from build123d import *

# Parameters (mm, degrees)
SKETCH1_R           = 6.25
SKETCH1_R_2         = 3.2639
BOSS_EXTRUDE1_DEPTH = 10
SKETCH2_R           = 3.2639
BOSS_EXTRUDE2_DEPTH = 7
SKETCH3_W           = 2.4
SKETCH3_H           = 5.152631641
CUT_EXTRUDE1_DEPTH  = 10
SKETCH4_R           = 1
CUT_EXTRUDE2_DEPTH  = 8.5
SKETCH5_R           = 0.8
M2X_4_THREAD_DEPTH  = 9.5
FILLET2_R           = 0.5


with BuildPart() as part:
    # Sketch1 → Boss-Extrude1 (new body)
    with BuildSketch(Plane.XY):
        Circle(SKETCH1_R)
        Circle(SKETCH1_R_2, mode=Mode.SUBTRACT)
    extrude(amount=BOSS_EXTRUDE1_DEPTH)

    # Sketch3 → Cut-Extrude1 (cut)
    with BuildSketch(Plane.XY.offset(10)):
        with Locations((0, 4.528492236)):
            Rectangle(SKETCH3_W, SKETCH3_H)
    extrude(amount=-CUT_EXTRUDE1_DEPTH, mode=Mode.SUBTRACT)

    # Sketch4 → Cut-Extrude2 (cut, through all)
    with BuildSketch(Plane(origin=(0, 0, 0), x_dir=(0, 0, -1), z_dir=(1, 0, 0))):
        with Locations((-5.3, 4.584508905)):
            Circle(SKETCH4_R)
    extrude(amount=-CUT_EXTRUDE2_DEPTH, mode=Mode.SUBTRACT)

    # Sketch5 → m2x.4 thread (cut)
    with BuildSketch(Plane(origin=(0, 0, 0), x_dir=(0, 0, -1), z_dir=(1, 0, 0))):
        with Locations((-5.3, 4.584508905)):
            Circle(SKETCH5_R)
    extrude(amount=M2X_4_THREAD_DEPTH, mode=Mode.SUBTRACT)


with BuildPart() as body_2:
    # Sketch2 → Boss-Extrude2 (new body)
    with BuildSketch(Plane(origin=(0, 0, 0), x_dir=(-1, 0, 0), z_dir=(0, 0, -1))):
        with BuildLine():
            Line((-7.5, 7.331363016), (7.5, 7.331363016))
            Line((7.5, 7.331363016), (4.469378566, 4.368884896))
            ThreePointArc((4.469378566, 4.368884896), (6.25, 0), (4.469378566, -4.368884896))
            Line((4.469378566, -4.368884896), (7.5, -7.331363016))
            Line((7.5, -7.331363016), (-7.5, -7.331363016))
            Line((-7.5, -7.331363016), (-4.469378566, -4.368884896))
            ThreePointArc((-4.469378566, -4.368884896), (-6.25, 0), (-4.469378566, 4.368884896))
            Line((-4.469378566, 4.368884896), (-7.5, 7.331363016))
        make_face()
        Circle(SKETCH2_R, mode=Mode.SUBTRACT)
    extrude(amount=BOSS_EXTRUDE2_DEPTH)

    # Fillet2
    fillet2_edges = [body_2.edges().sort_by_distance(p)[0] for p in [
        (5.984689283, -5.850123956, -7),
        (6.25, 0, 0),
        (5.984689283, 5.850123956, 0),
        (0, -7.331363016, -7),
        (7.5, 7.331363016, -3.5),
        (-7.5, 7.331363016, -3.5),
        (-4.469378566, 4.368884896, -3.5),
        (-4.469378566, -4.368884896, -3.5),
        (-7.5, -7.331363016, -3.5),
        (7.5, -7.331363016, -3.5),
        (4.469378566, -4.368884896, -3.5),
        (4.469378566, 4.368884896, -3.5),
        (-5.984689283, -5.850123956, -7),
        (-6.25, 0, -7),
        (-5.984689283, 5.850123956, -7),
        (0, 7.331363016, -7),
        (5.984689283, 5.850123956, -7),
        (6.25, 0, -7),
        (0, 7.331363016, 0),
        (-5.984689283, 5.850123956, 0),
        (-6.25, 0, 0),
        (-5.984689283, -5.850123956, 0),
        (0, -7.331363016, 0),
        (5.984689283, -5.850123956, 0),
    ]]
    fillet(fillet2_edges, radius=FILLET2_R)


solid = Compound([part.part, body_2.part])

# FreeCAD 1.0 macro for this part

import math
import FreeCAD as App
import Part
import Sketcher

V = App.Vector


def edges_at(feature, points):
    """Names of the edges that pass closest to the given points."""
    edges = feature.Shape.Edges
    near = lambda p: min(range(len(edges)), key=lambda i: edges[i].distToShape(Part.Vertex(*p))[0])
    return sorted({f"Edge{near(p) + 1}" for p in points})


def add_polygon(sketch, points):
    """Adds a closed chain of lines whose ends are joined by coincident constraints."""
    first, n = sketch.GeometryCount, len(points)
    for a, b in zip(points, points[1:] + points[:1]):
        sketch.addGeometry(Part.LineSegment(App.Vector(*a, 0), App.Vector(*b, 0)), False)
    for i in range(n):
        sketch.addConstraint(Sketcher.Constraint("Coincident", first + i, 2, first + (i + 1) % n, 1))

doc = App.newDocument("Part")
params = doc.addObject("Spreadsheet::Sheet", "Params")
for row, (alias, value) in enumerate([
    ("sketch1_diameter", "12.5 mm"),
    ("pad1_length", "10 mm"),
    ("sketch2_width", "2.4 mm"),
    ("pocket1_length", "10 mm"),
    ("sketch3_diameter", "2 mm"),
    ("sketch4_diameter", "1.6 mm"),
    ("pocket3_length", "9.5 mm"),
    ("sketch5_width", "15 mm"),
    ("sketch5_radius", "6.25 mm"),
    ("pad2_length", "7 mm"),
    ("fillet_radius", "0.5 mm"),
], start=1):
    params.set(f"A{row}", alias)
    params.set(f"B{row}", "=" + value)
    params.setAlias(f"B{row}", alias)

body = doc.addObject("PartDesign::Body", "Body")

# Sketch on XY plane
sketch1 = doc.addObject("Sketcher::SketchObject", "Sketch")
body.addObject(sketch1)
sketch1.AttachmentSupport = (doc.XY_Plane, [""])
sketch1.MapMode = "FlatFace"
sketch1.addGeometry([
    Part.Circle(V(0, 0, 0), V(0, 0, 1), 6.2),
    Part.Circle(V(0, 0, 0), V(0, 0, 1), 3.3),
], False)
sketch1.addConstraint([
    Sketcher.Constraint("Coincident", 0, 3, -1, 1),
    Sketcher.Constraint("Coincident", 1, 3, -1, 1),
    Sketcher.Constraint("Diameter", 0, 12.5),
    Sketcher.Constraint("Diameter", 1, 6.5278),
])
sketch1.setExpression("Constraints[2]", "Params.sketch1_diameter")
pad1 = doc.addObject("PartDesign::Pad", "Pad")
body.addObject(pad1)
pad1.Profile = sketch1
pad1.setExpression("Length", "Params.pad1_length")

# Sketch on XY plane
sketch2 = doc.addObject("Sketcher::SketchObject", "Sketch001")
body.addObject(sketch2)
sketch2.AttachmentSupport = (doc.XY_Plane, [""])
sketch2.MapMode = "FlatFace"
sketch2.AttachmentOffset = App.Placement(V(0, 0, 10), App.Rotation())
add_polygon(sketch2, [(-1.2, 7.1), (-1.2, 2), (1.2, 2), (1.2, 7.1)])  # lines 0-3
sketch2.addConstraint([
    Sketcher.Constraint("Vertical", 0),
    Sketcher.Constraint("Horizontal", 1),
    Sketcher.Constraint("Vertical", 2),
    Sketcher.Constraint("Horizontal", 3),
    Sketcher.Constraint("DistanceX", 1, 1, 1, 2, 2.4),
    Sketcher.Constraint("DistanceX", 0, 2, -1, 1, 1.2),
    Sketcher.Constraint("DistanceY", 0, 2, 0, 1, 5.152632),
    Sketcher.Constraint("DistanceY", -1, 1, 2, 2, 7.104808),
])
sketch2.setExpression("Constraints[8]", "Params.sketch2_width")
pocket1 = doc.addObject("PartDesign::Pocket", "Pocket")
body.addObject(pocket1)
pocket1.Profile = sketch2
pocket1.setExpression("Length", "Params.pocket1_length")

# Sketch on YZ plane
sketch3 = doc.addObject("Sketcher::SketchObject", "Sketch002")
body.addObject(sketch3)
sketch3.AttachmentSupport = (doc.YZ_Plane, [""])
sketch3.MapMode = "FlatFace"
sketch3.addGeometry(Part.Circle(V(4.6, 5.3, 0), V(0, 0, 1), 1), False)
sketch3.addConstraint([
    Sketcher.Constraint("Diameter", 0, 2.0),
    Sketcher.Constraint("DistanceY", -1, 1, 0, 3, 5.3),
    Sketcher.Constraint("DistanceX", -1, 1, 0, 3, 4.584509),
])
sketch3.setExpression("Constraints[0]", "Params.sketch3_diameter")
pocket2 = doc.addObject("PartDesign::Pocket", "Pocket001")
body.addObject(pocket2)
pocket2.Profile = sketch3
pocket2.Type = "ThroughAll"

# Sketch on YZ plane
sketch4 = doc.addObject("Sketcher::SketchObject", "Sketch003")
body.addObject(sketch4)
sketch4.AttachmentSupport = (doc.YZ_Plane, [""])
sketch4.MapMode = "FlatFace"
sketch4.addGeometry(Part.Circle(V(4.6, 5.3, 0), V(0, 0, 1), 0.8), False)
sketch4.addConstraint([
    Sketcher.Constraint("Diameter", 0, 1.6),
    Sketcher.Constraint("DistanceY", -1, 1, 0, 3, 5.3),
    Sketcher.Constraint("DistanceX", -1, 1, 0, 3, 4.584509),
])
sketch4.setExpression("Constraints[0]", "Params.sketch4_diameter")
pocket3 = doc.addObject("PartDesign::Pocket", "Pocket002")
body.addObject(pocket3)
pocket3.Profile = sketch4
pocket3.setExpression("Length", "Params.pocket3_length")
pocket3.Reversed = True
body2 = doc.addObject("PartDesign::Body", "Body001")

# Sketch on XY plane
sketch5 = doc.addObject("Sketcher::SketchObject", "Sketch004")
body2.addObject(sketch5)
sketch5.AttachmentSupport = (doc.getObject("XY_Plane001"), [""])
sketch5.MapMode = "FlatFace"
sketch5.addGeometry([
    Part.LineSegment(V(-7.5, 7.3, 0), V(7.5, 7.3, 0)),  # 0
    Part.LineSegment(V(7.5, 7.3, 0), V(4.5, 4.4, 0)),  # 1
    Part.ArcOfCircle(Part.Circle(V(0, 0, 0), V(0, 0, 1), 6.2), math.radians(-44), math.radians(44)),  # 2
    Part.LineSegment(V(4.5, -4.4, 0), V(7.5, -7.3, 0)),  # 3
    Part.LineSegment(V(7.5, -7.3, 0), V(-7.5, -7.3, 0)),  # 4
    Part.LineSegment(V(-7.5, -7.3, 0), V(-4.5, -4.4, 0)),  # 5
    Part.ArcOfCircle(Part.Circle(V(0, 0, 0), V(0, 0, 1), 6.2), math.radians(136), math.radians(224)),  # 6
    Part.LineSegment(V(-4.5, 4.4, 0), V(-7.5, 7.3, 0)),  # 7
    Part.Circle(V(0, 0, 0), V(0, 0, 1), 3.3),  # 8
], False)
sketch5.addConstraint([
    Sketcher.Constraint("Coincident", 0, 2, 1, 1),
    Sketcher.Constraint("Coincident", 1, 2, 2, 2),
    Sketcher.Constraint("Coincident", 2, 1, 3, 1),
    Sketcher.Constraint("Coincident", 3, 2, 4, 1),
    Sketcher.Constraint("Coincident", 4, 2, 5, 1),
    Sketcher.Constraint("Coincident", 5, 2, 6, 2),
    Sketcher.Constraint("Coincident", 6, 1, 7, 1),
    Sketcher.Constraint("Coincident", 7, 2, 0, 1),
    Sketcher.Constraint("Horizontal", 0),
    Sketcher.Constraint("Horizontal", 4),
    Sketcher.Constraint("Coincident", 2, 3, -1, 1),
    Sketcher.Constraint("Coincident", 6, 3, -1, 1),
    Sketcher.Constraint("Coincident", 8, 3, -1, 1),
    Sketcher.Constraint("Equal", 2, 6),
    Sketcher.Constraint("Symmetric", 0, 2, 4, 2, -1, 1),
    Sketcher.Constraint("Parallel", 1, 5),
    Sketcher.Constraint("Parallel", 3, 7),
    Sketcher.Constraint("Horizontal", 2, 1, 5, 2),
    Sketcher.Constraint("Horizontal", 1, 2, 6, 1),
    Sketcher.Constraint("Vertical", 0, 2, 3, 2),
    Sketcher.Constraint("DistanceX", 0, 1, 0, 2, 15.0),
    Sketcher.Constraint("Radius", 2, 6.25),
    Sketcher.Constraint("Diameter", 8, 6.5278),
    Sketcher.Constraint("DistanceX", -1, 1, 1, 2, 4.469379),
    Sketcher.Constraint("DistanceY", 1, 2, 0, 2, 2.962478),
])
sketch5.setExpression("Constraints[20]", "Params.sketch5_width")
sketch5.setExpression("Constraints[21]", "Params.sketch5_radius")
pad2 = doc.addObject("PartDesign::Pad", "Pad001")
body2.addObject(pad2)
pad2.Profile = sketch5
pad2.setExpression("Length", "Params.pad2_length")
pad2.Reversed = True
doc.recompute()

fillet = doc.addObject("PartDesign::Fillet", "Fillet")
body2.addObject(fillet)
fillet.Base = (pad2, edges_at(pad2, [
    (5.985, -5.85, -7),
    (6.25, 0, 0),
    (5.985, 5.85, 0),
    (0, -7.331, -7),
    (7.5, 7.331, -3.5),
    (-7.5, 7.331, -3.5),
    (-4.469, 4.369, -3.5),
    (-4.469, -4.369, -3.5),
    (-7.5, -7.331, -3.5),
    (7.5, -7.331, -3.5),
    (4.469, -4.369, -3.5),
    (4.469, 4.369, -3.5),
    (-5.985, -5.85, -7),
    (-6.25, 0, -7),
    (-5.985, 5.85, -7),
    (0, 7.331, -7),
    (5.985, 5.85, -7),
    (6.25, 0, -7),
    (0, 7.331, 0),
    (-5.985, 5.85, 0),
    (-6.25, 0, 0),
    (-5.985, -5.85, 0),
    (0, -7.331, 0),
    (5.985, -5.85, 0),
]))
fillet.setExpression("Radius", "Params.fillet_radius")

doc.recompute()
